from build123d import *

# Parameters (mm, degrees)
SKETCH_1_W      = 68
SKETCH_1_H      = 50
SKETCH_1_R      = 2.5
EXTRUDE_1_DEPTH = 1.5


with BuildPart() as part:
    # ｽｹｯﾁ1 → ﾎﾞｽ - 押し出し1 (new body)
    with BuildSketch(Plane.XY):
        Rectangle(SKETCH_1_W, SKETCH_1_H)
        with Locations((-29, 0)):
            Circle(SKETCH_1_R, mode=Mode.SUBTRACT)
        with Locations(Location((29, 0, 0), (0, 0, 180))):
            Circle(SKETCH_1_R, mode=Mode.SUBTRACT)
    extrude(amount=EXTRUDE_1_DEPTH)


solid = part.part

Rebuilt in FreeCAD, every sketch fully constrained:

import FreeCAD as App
import Part
import Sketcher


def add_polygon(sketch, points):
    """Adds a closed chain of lines whose ends are joined by coincident constraints."""
    first, n = sketch.GeometryCount, len(points)
    for a, b in zip(points, points[1:] + points[:1]):
        sketch.addGeometry(Part.LineSegment(App.Vector(*a, 0), App.Vector(*b, 0)), False)
    for i in range(n):
        sketch.addConstraint(Sketcher.Constraint("Coincident", first + i, 2, first + (i + 1) % n, 1))

doc = App.newDocument("Part")
body = doc.addObject("PartDesign::Body", "Body")

sketch1 = doc.addObject("Sketcher::SketchObject", "Sketch")
body.addObject(sketch1)
sketch1.AttachmentSupport = (doc.XY_Plane, [""])
sketch1.MapMode = "FlatFace"
add_polygon(sketch1, [(-34, 25), (-34, -25), (34, -25), (34, 25)])
sketch1.addGeometry(Part.Circle(App.Vector(-29, 0, 0), App.Vector(0, 0, 1), 2.5), False)
sketch1.addGeometry(Part.Circle(App.Vector(29, 0, 0), App.Vector(0, 0, 1), 2.5), False)
sketch1.addConstraint([
    Sketcher.Constraint("Vertical", 0),
    Sketcher.Constraint("Horizontal", 1),
    Sketcher.Constraint("Vertical", 2),
    Sketcher.Constraint("Horizontal", 3),
    Sketcher.Constraint("Equal", 4, 5),
    Sketcher.Constraint("Symmetric", 4, 3, 5, 3, -1, 1),
    Sketcher.Constraint("Symmetric", 0, 2, 2, 2, -1, 1),
    Sketcher.Constraint("PointOnObject", 4, 3, -1),
    Sketcher.Constraint("Diameter", 4, 5.0),
    Sketcher.Constraint("DistanceX", 1, 1, 1, 2, 68.0),
    Sketcher.Constraint("DistanceY", 0, 2, 0, 1, 50.0),
    Sketcher.Constraint("DistanceX", 4, 3, -1, 1, 29.0),
])
pad1 = doc.addObject("PartDesign::Pad", "Pad")
body.addObject(pad1)
pad1.Profile = sketch1
pad1.Length = 1.5

doc.recompute()
